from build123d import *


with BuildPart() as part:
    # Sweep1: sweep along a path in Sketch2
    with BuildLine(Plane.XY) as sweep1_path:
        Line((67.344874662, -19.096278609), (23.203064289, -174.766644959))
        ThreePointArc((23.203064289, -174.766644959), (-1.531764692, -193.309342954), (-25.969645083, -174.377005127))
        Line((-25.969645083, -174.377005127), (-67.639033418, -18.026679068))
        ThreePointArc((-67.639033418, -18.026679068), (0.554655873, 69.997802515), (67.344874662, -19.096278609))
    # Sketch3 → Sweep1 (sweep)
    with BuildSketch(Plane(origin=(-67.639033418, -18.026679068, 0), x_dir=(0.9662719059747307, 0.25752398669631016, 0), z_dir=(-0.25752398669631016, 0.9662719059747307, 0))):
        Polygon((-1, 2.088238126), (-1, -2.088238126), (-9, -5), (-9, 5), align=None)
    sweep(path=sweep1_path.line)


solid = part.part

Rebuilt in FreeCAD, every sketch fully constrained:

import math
import FreeCAD as App
import Part
import Sketcher
Q = App.Units.Quantity

doc = App.newDocument("Part")
body = doc.addObject("PartDesign::Body", "Body")

# Sketch on an angled plane
sketch1 = body.newObject("Sketcher::SketchObject", "Sketch")
sketch1.Placement = App.Placement(App.Vector(-67.639033, -18.026679, 0), App.Rotation(App.Vector(0.966271906, 0.257523987, 0), App.Vector(0, 0, -1), App.Vector(-0.257523987, 0.966271906, 0), "ZXY"))
sketch1.addGeometry(Part.LineSegment(App.Vector(-1, -2.1, 0), App.Vector(-1, 2.1, 0)), False)
sketch1.addGeometry(Part.LineSegment(App.Vector(-1, 2.1, 0), App.Vector(-9, 5, 0)), False)
sketch1.addGeometry(Part.LineSegment(App.Vector(-9, 5, 0), App.Vector(-9, -5, 0)), False)
sketch1.addGeometry(Part.LineSegment(App.Vector(-9, -5, 0), App.Vector(-1, -2.1, 0)), False)
sketch1.addConstraint(Sketcher.Constraint("Coincident", 0, 2, 1, 1))
sketch1.addConstraint(Sketcher.Constraint("Coincident", 1, 2, 2, 1))
sketch1.addConstraint(Sketcher.Constraint("Coincident", 2, 2, 3, 1))
sketch1.addConstraint(Sketcher.Constraint("Coincident", 3, 2, 0, 1))
sketch1.addConstraint(Sketcher.Constraint("Vertical", 0))
sketch1.addConstraint(Sketcher.Constraint("Vertical", 2))
sketch1.addConstraint(Sketcher.Constraint("Equal", 1, 3))
sketch1.addConstraint(Sketcher.Constraint("DistanceY", 2, 2, 2, 1, Q("10 mm")))
sketch1.addConstraint(Sketcher.Constraint("Angle", 1, Q("160 deg")))
sketch1.addConstraint(Sketcher.Constraint("DistanceX", 0, 2, -1, 1, Q("1 mm")))
sketch1.addConstraint(Sketcher.Constraint("DistanceX", 1, 2, -1, 1, Q("9 mm")))
sketch1.addConstraint(Sketcher.Constraint("DistanceY", -1, 1, 1, 2, Q("5 mm")))

# Sketch on XY plane
sketch2 = body.newObject("Sketcher::SketchObject", "Sketch001")
sketch2.AttachmentSupport = (doc.getObject("XY_Plane"), [""])
sketch2.MapMode = "FlatFace"
sketch2.addGeometry(Part.LineSegment(App.Vector(67, -19, 0), App.Vector(23, -175, 0)), False)
sketch2.addGeometry(Part.ArcOfCircle(Part.Circle(App.Vector(-1, -168, 0), App.Vector(0, 0, 1), 26), math.radians(-165), math.radians(-16)), False)
sketch2.addGeometry(Part.LineSegment(App.Vector(-26, -174, 0), App.Vector(-68, -18, 0)), False)
sketch2.addGeometry(Part.ArcOfCircle(Part.Circle(App.Vector(0, 0, 0), App.Vector(0, 0, 1), 70), math.radians(-16), math.radians(195)), False)
sketch2.addConstraint(Sketcher.Constraint("Tangent", 0, 2, 1, 2))
sketch2.addConstraint(Sketcher.Constraint("Tangent", 1, 1, 2, 1))
sketch2.addConstraint(Sketcher.Constraint("Tangent", 2, 2, 3, 2))
sketch2.addConstraint(Sketcher.Constraint("Tangent", 3, 1, 0, 1))
sketch2.addConstraint(Sketcher.Constraint("Coincident", 3, 3, -1, 1))
sketch2.addConstraint(Sketcher.Constraint("Radius", 3, Q("70 mm")))
sketch2.addConstraint(Sketcher.Constraint("Radius", 1, Q("25.5 mm")))
sketch2.addConstraint(Sketcher.Constraint("DistanceY", 0, 2, 1, 3, Q("6.956501 mm")))
sketch2.addConstraint(Sketcher.Constraint("DistanceX", 1, 3, -1, 1, Q("1.329711 mm")))
doc.recompute()

additivepipe = body.newObject("PartDesign::AdditivePipe", "AdditivePipe")
additivepipe.Profile = sketch1
additivepipe.Spine = (sketch2, ["Edge1", "Edge2", "Edge3", "Edge4"])

doc.recompute()
